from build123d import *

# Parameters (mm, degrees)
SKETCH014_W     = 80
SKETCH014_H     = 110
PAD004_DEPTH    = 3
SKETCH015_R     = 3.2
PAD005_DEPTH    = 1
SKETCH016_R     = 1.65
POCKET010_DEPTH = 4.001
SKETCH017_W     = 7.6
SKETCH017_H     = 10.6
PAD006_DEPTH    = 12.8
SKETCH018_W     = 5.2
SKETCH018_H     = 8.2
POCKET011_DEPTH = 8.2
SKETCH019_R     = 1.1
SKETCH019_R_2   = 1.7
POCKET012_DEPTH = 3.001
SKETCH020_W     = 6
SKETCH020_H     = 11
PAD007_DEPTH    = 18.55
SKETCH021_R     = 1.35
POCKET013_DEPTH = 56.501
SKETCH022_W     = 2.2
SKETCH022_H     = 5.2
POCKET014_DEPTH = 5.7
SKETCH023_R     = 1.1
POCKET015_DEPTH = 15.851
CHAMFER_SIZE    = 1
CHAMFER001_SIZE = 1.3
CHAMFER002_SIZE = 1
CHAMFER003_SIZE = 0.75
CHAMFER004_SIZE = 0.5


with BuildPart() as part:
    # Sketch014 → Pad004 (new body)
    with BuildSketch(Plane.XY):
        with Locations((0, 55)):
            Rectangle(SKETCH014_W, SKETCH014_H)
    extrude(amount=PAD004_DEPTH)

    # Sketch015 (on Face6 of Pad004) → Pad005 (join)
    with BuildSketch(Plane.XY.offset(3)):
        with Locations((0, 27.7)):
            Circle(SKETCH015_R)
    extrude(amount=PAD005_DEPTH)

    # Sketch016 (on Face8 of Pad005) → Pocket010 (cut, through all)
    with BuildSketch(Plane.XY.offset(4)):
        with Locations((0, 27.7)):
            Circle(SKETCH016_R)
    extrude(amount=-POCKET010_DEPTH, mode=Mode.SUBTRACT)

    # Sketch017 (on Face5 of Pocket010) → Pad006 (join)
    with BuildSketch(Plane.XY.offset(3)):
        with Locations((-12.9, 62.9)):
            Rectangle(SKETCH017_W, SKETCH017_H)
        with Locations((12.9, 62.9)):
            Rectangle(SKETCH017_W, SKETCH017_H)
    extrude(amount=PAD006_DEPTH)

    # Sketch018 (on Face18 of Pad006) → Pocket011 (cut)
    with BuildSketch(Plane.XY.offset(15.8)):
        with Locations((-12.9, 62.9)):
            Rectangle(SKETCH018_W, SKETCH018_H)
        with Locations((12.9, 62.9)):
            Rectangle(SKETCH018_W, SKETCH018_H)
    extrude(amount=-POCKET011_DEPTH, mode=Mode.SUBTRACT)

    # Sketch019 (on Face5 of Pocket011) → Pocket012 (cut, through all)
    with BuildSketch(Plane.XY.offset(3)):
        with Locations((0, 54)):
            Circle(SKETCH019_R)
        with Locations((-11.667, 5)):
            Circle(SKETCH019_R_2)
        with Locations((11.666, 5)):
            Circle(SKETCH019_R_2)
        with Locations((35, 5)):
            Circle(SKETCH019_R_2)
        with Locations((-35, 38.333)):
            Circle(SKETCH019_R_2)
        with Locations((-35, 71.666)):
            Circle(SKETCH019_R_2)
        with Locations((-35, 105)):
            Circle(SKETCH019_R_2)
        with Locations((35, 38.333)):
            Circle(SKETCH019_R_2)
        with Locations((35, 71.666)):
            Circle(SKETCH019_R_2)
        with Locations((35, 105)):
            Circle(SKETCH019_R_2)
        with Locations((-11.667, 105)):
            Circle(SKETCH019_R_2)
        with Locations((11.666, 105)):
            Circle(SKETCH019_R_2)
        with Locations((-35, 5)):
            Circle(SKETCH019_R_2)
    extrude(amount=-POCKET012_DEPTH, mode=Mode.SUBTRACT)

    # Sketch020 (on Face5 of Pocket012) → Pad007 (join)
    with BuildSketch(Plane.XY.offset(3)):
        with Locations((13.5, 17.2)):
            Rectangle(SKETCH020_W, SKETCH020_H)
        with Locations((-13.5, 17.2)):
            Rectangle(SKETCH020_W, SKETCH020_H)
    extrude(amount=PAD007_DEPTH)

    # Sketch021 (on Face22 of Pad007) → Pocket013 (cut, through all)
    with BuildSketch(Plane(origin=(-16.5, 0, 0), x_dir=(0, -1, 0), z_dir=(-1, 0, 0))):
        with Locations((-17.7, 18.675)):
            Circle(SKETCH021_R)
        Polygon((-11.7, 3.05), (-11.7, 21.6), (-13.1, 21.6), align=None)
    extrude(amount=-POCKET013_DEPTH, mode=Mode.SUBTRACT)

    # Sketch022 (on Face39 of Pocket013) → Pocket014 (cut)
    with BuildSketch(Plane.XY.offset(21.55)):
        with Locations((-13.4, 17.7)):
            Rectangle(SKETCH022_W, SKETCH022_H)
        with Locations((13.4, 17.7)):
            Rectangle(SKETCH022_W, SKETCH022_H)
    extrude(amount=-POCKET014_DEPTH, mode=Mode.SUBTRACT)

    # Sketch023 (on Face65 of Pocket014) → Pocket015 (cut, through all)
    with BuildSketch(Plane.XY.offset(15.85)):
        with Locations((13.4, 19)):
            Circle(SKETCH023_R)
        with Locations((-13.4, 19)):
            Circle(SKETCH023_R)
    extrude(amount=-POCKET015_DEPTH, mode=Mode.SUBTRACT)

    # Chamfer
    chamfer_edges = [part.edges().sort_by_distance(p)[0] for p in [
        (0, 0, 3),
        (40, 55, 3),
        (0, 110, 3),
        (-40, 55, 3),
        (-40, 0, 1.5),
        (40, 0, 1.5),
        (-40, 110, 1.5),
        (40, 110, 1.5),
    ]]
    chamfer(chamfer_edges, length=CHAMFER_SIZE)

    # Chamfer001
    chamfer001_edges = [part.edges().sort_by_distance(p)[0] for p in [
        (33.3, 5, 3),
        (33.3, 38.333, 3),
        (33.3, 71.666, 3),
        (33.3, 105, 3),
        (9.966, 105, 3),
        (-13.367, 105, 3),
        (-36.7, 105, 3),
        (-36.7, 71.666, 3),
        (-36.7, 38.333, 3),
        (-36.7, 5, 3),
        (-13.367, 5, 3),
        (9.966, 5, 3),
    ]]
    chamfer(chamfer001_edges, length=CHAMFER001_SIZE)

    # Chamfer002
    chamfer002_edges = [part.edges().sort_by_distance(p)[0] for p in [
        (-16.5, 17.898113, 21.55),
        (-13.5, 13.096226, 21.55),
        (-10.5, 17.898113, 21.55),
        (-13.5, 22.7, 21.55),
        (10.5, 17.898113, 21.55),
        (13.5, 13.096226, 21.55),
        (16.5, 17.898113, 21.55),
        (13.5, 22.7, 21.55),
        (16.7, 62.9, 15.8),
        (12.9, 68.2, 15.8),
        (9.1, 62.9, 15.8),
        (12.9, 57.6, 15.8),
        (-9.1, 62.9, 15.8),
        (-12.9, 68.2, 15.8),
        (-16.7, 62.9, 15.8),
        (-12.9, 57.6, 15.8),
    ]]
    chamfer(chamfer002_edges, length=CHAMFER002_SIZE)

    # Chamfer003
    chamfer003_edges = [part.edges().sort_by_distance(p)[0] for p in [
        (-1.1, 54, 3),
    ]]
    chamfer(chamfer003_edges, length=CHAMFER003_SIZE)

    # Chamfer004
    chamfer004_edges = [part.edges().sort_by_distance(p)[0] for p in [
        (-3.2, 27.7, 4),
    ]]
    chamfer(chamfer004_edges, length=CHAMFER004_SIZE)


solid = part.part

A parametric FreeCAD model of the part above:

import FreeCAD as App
import Part
import Sketcher
Q = App.Units.Quantity


def edges_at(feature, points):
    """Names of the edges that pass closest to the given points."""
    edges = feature.Shape.Edges
    near = lambda p: min(range(len(edges)), key=lambda i: edges[i].distToShape(Part.Vertex(*p))[0])
    return sorted({f"Edge{near(p) + 1}" for p in points})


def add_polygon(sketch, points):
    """Adds a closed chain of lines whose ends are joined by coincident constraints."""
    first, n = sketch.GeometryCount, len(points)
    for a, b in zip(points, points[1:] + points[:1]):
        sketch.addGeometry(Part.LineSegment(App.Vector(*a, 0), App.Vector(*b, 0)), False)
    for i in range(n):
        sketch.addConstraint(Sketcher.Constraint("Coincident", first + i, 2, first + (i + 1) % n, 1))

doc = App.newDocument("Part")
body = doc.addObject("PartDesign::Body", "Body")

# Sketch on XY plane
sketch1 = doc.addObject("Sketcher::SketchObject", "Sketch")
body.addObject(sketch1)
sketch1.AttachmentSupport = (doc.XY_Plane, [""])
sketch1.MapMode = "FlatFace"
add_polygon(sketch1, [(-40, 110), (-40, 0), (40, 0), (40, 110)])  # lines 0-3
sketch1.addConstraint([
    Sketcher.Constraint("Vertical", 0),
    Sketcher.Constraint("Horizontal", 1),
    Sketcher.Constraint("Vertical", 2),
    Sketcher.Constraint("Horizontal", 3),
    Sketcher.Constraint("Symmetric", 0, 2, 1, 2, -1, 1),
    Sketcher.Constraint("DistanceX", 1, 1, 1, 2, Q("80 mm")),
    Sketcher.Constraint("DistanceY", 0, 2, 0, 1, Q("110 mm")),
])
pad1 = doc.addObject("PartDesign::Pad", "Pad")
body.addObject(pad1)
pad1.Profile = sketch1
pad1.Length = 3

# Sketch on XY plane
sketch2 = doc.addObject("Sketcher::SketchObject", "Sketch001")
body.addObject(sketch2)
sketch2.AttachmentSupport = (doc.XY_Plane, [""])
sketch2.MapMode = "FlatFace"
sketch2.AttachmentOffset = App.Placement(App.Vector(0, 0, 3), App.Rotation())
sketch2.addGeometry(Part.Circle(App.Vector(0, 27.7, 0), App.Vector(0, 0, 1), 3.2), False)
sketch2.addConstraint([
    Sketcher.Constraint("PointOnObject", 0, 3, -2),
    Sketcher.Constraint("Diameter", 0, Q("6.4 mm")),
    Sketcher.Constraint("DistanceY", -1, 1, 0, 3, Q("27.7 mm")),
])
pad2 = doc.addObject("PartDesign::Pad", "Pad001")
body.addObject(pad2)
pad2.Profile = sketch2
pad2.Length = 1

# Sketch on XY plane
sketch3 = doc.addObject("Sketcher::SketchObject", "Sketch002")
body.addObject(sketch3)
sketch3.AttachmentSupport = (doc.XY_Plane, [""])
sketch3.MapMode = "FlatFace"
sketch3.AttachmentOffset = App.Placement(App.Vector(0, 0, 4), App.Rotation())
sketch3.addGeometry(Part.Circle(App.Vector(0, 27.7, 0), App.Vector(0, 0, 1), 1.65), False)
sketch3.addConstraint([
    Sketcher.Constraint("PointOnObject", 0, 3, -2),
    Sketcher.Constraint("Diameter", 0, Q("3.3 mm")),
    Sketcher.Constraint("DistanceY", -1, 1, 0, 3, Q("27.7 mm")),
])
pocket1 = doc.addObject("PartDesign::Pocket", "Pocket")
body.addObject(pocket1)
pocket1.Profile = sketch3
pocket1.Type = "ThroughAll"

# Sketch on XY plane
sketch4 = doc.addObject("Sketcher::SketchObject", "Sketch003")
body.addObject(sketch4)
sketch4.AttachmentSupport = (doc.XY_Plane, [""])
sketch4.MapMode = "FlatFace"
sketch4.AttachmentOffset = App.Placement(App.Vector(0, 0, 3), App.Rotation())
add_polygon(sketch4, [(-16.7, 68.2), (-16.7, 57.6), (-9.1, 57.6), (-9.1, 68.2)])  # lines 0-3
add_polygon(sketch4, [(9.1, 68.2), (9.1, 57.6), (16.7, 57.6), (16.7, 68.2)])  # lines 4-7
sketch4.addConstraint([
    Sketcher.Constraint("Vertical", 0),
    Sketcher.Constraint("Horizontal", 1),
    Sketcher.Constraint("Vertical", 2),
    Sketcher.Constraint("Horizontal", 3),
    Sketcher.Constraint("Vertical", 4),
    Sketcher.Constraint("Horizontal", 5),
    Sketcher.Constraint("Vertical", 6),
    Sketcher.Constraint("Horizontal", 7),
    Sketcher.Constraint("Symmetric", 1, 2, 4, 2, -2),
    Sketcher.Constraint("Symmetric", 3, 2, 6, 2, -2),
    Sketcher.Constraint("DistanceX", 1, 1, 1, 2, Q("7.6 mm")),
    Sketcher.Constraint("DistanceY", 0, 2, 0, 1, Q("10.6 mm")),
    Sketcher.Constraint("DistanceX", 0, 2, -1, 1, Q("16.7 mm")),
    Sketcher.Constraint("DistanceY", -1, 1, 0, 2, Q("57.6 mm")),
])
pad3 = doc.addObject("PartDesign::Pad", "Pad002")
body.addObject(pad3)
pad3.Profile = sketch4
pad3.Length = 12.8

# Sketch on XY plane
sketch5 = doc.addObject("Sketcher::SketchObject", "Sketch004")
body.addObject(sketch5)
sketch5.AttachmentSupport = (doc.XY_Plane, [""])
sketch5.MapMode = "FlatFace"
sketch5.AttachmentOffset = App.Placement(App.Vector(0, 0, 15.8), App.Rotation())
add_polygon(sketch5, [(-15.5, 67), (-15.5, 58.8), (-10.3, 58.8), (-10.3, 67)])  # lines 0-3
add_polygon(sketch5, [(10.3, 67), (10.3, 58.8), (15.5, 58.8), (15.5, 67)])  # lines 4-7
sketch5.addConstraint([
    Sketcher.Constraint("Vertical", 0),
    Sketcher.Constraint("Horizontal", 1),
    Sketcher.Constraint("Vertical", 2),
    Sketcher.Constraint("Horizontal", 3),
    Sketcher.Constraint("Vertical", 4),
    Sketcher.Constraint("Horizontal", 5),
    Sketcher.Constraint("Vertical", 6),
    Sketcher.Constraint("Horizontal", 7),
    Sketcher.Constraint("Symmetric", 1, 2, 4, 2, -2),
    Sketcher.Constraint("Symmetric", 3, 2, 6, 2, -2),
    Sketcher.Constraint("DistanceX", 1, 1, 1, 2, Q("5.2 mm")),
    Sketcher.Constraint("DistanceY", 0, 2, 0, 1, Q("8.2 mm")),
    Sketcher.Constraint("DistanceY", -1, 1, 2, 2, Q("67 mm")),
    Sketcher.Constraint("DistanceX", 0, 2, 5, 2, Q("31 mm")),
])
pocket2 = doc.addObject("PartDesign::Pocket", "Pocket001")
body.addObject(pocket2)
pocket2.Profile = sketch5
pocket2.Length = 8.2

# Sketch on XY plane
sketch6 = doc.addObject("Sketcher::SketchObject", "Sketch005")
body.addObject(sketch6)
sketch6.AttachmentSupport = (doc.XY_Plane, [""])
sketch6.MapMode = "FlatFace"
sketch6.AttachmentOffset = App.Placement(App.Vector(0, 0, 3), App.Rotation())
sketch6.addGeometry([
    Part.Circle(App.Vector(0, 54, 0), App.Vector(0, 0, 1), 1.1),  # 0
    Part.Circle(App.Vector(-11.667, 5, 0), App.Vector(0, 0, 1), 1.7),  # 1
    Part.Circle(App.Vector(11.666, 5, 0), App.Vector(0, 0, 1), 1.7),  # 2
    Part.Circle(App.Vector(35, 5, 0), App.Vector(0, 0, 1), 1.7),  # 3
    Part.Circle(App.Vector(-35, 38.333, 0), App.Vector(0, 0, 1), 1.7),  # 4
    Part.Circle(App.Vector(-35, 71.666, 0), App.Vector(0, 0, 1), 1.7),  # 5
    Part.Circle(App.Vector(-35, 105, 0), App.Vector(0, 0, 1), 1.7),  # 6
    Part.Circle(App.Vector(35, 38.333, 0), App.Vector(0, 0, 1), 1.7),  # 7
    Part.Circle(App.Vector(35, 71.666, 0), App.Vector(0, 0, 1), 1.7),  # 8
    Part.Circle(App.Vector(35, 105, 0), App.Vector(0, 0, 1), 1.7),  # 9
    Part.Circle(App.Vector(-11.667, 105, 0), App.Vector(0, 0, 1), 1.7),  # 10
    Part.Circle(App.Vector(11.666, 105, 0), App.Vector(0, 0, 1), 1.7),  # 11
    Part.Circle(App.Vector(-35, 5, 0), App.Vector(0, 0, 1), 1.7),  # 12
], False)
sketch6.addConstraint([
    Sketcher.Constraint("Equal", 1, 2),
    Sketcher.Constraint("Equal", 2, 3),
    Sketcher.Constraint("Equal", 3, 4),
    Sketcher.Constraint("Equal", 4, 5),
    Sketcher.Constraint("Equal", 5, 6),
    Sketcher.Constraint("Equal", 6, 7),
    Sketcher.Constraint("Equal", 7, 8),
    Sketcher.Constraint("Equal", 8, 9),
    Sketcher.Constraint("Equal", 9, 10),
    Sketcher.Constraint("Equal", 10, 11),
    Sketcher.Constraint("Equal", 11, 12),
    Sketcher.Constraint("Symmetric", 4, 3, 7, 3, -2),
    Sketcher.Constraint("Symmetric", 5, 3, 8, 3, -2),
    Sketcher.Constraint("Symmetric", 6, 3, 9, 3, -2),
    Sketcher.Constraint("Symmetric", 3, 3, 12, 3, -2),
    Sketcher.Constraint("PointOnObject", 0, 3, -2),
    Sketcher.Constraint("Horizontal", 1, 3, 2, 3),
    Sketcher.Constraint("Horizontal", 2, 3, 3, 3),
    Sketcher.Constraint("Horizontal", 9, 3, 10, 3),
    Sketcher.Constraint("Horizontal", 10, 3, 11, 3),
    Sketcher.Constraint("Vertical", 4, 3, 5, 3),
    Sketcher.Constraint("Vertical", 5, 3, 6, 3),
    Sketcher.Constraint("Vertical", 3, 3, 7, 3),
    Sketcher.Constraint("Vertical", 1, 3, 10, 3),
    Sketcher.Constraint("Vertical", 2, 3, 11, 3),
    Sketcher.Constraint("Diameter", 0, Q("2.2 mm")),
    Sketcher.Constraint("Diameter", 1, Q("3.4 mm")),
    Sketcher.Constraint("DistanceY", -1, 1, 0, 3, Q("54 mm")),
    Sketcher.Constraint("DistanceY", -1, 1, 1, 3, Q("5 mm")),
    Sketcher.Constraint("DistanceX", -1, 1, 3, 3, Q("35 mm")),
    Sketcher.Constraint("DistanceY", -1, 1, 6, 3, Q("105 mm")),
    Sketcher.Constraint("DistanceX", 1, 3, -1, 1, Q("11.667 mm")),
    Sketcher.Constraint("DistanceX", -1, 1, 2, 3, Q("11.666 mm")),
    Sketcher.Constraint("DistanceY", -1, 1, 4, 3, Q("38.333 mm")),
    Sketcher.Constraint("DistanceY", -1, 1, 5, 3, Q("71.666 mm")),
])
pocket3 = doc.addObject("PartDesign::Pocket", "Pocket002")
body.addObject(pocket3)
pocket3.Profile = sketch6
pocket3.Type = "ThroughAll"

# Sketch on XY plane
sketch7 = doc.addObject("Sketcher::SketchObject", "Sketch006")
body.addObject(sketch7)
sketch7.AttachmentSupport = (doc.XY_Plane, [""])
sketch7.MapMode = "FlatFace"
sketch7.AttachmentOffset = App.Placement(App.Vector(0, 0, 3), App.Rotation())
add_polygon(sketch7, [(10.5, 22.7), (10.5, 11.7), (16.5, 11.7), (16.5, 22.7)])  # lines 0-3
add_polygon(sketch7, [(-16.5, 22.7), (-16.5, 11.7), (-10.5, 11.7), (-10.5, 22.7)])  # lines 4-7
sketch7.addConstraint([
    Sketcher.Constraint("Vertical", 0),
    Sketcher.Constraint("Horizontal", 1),
    Sketcher.Constraint("Vertical", 2),
    Sketcher.Constraint("Horizontal", 3),
    Sketcher.Constraint("Vertical", 4),
    Sketcher.Constraint("Horizontal", 5),
    Sketcher.Constraint("Vertical", 6),
    Sketcher.Constraint("Horizontal", 7),
    Sketcher.Constraint("Symmetric", 1, 2, 4, 2, -2),
    Sketcher.Constraint("Symmetric", 3, 2, 6, 2, -2),
    Sketcher.Constraint("DistanceX", 1, 1, 1, 2, Q("6 mm")),
    Sketcher.Constraint("DistanceY", 0, 2, 0, 1, Q("11 mm")),
    Sketcher.Constraint("DistanceX", 4, 2, 0, 2, Q("27 mm")),
    Sketcher.Constraint("DistanceY", -1, 1, 0, 2, Q("11.7 mm")),
])
pad4 = doc.addObject("PartDesign::Pad", "Pad003")
body.addObject(pad4)
pad4.Profile = sketch7
pad4.Length = 18.55

# Sketch on YZ plane
sketch8 = doc.addObject("Sketcher::SketchObject", "Sketch007")
body.addObject(sketch8)
sketch8.AttachmentSupport = (doc.YZ_Plane, [""])
sketch8.MapMode = "FlatFace"
sketch8.AttachmentOffset = App.Placement(App.Vector(0, 0, -16.5), App.Rotation())
sketch8.addGeometry(Part.Circle(App.Vector(17.7, 18.675, 0), App.Vector(0, 0, 1), 1.35), False)  # 0
add_polygon(sketch8, [(11.7, 3.05), (11.7, 21.6), (13.1, 21.6)])  # lines 1-3
sketch8.addConstraint([
    Sketcher.Constraint("Vertical", 1),
    Sketcher.Constraint("Horizontal", 2),
    Sketcher.Constraint("Diameter", 0, Q("2.7 mm")),
    Sketcher.Constraint("DistanceX", 2, 1, 2, 2, Q("1.4 mm")),
    Sketcher.Constraint("DistanceX", 1, 2, 0, 3, Q("6 mm")),
    Sketcher.Constraint("DistanceY", 1, 1, 1, 2, Q("18.55 mm")),
    Sketcher.Constraint("DistanceX", -1, 1, 0, 3, Q("17.7 mm")),
    Sketcher.Constraint("DistanceY", -1, 1, 1, 2, Q("21.6 mm")),
    Sketcher.Constraint("DistanceY", -1, 1, 0, 3, Q("18.675 mm")),
])
pocket4 = doc.addObject("PartDesign::Pocket", "Pocket003")
body.addObject(pocket4)
pocket4.Profile = sketch8
pocket4.Type = "ThroughAll"
pocket4.Reversed = True

# Sketch on XY plane
sketch9 = doc.addObject("Sketcher::SketchObject", "Sketch008")
body.addObject(sketch9)
sketch9.AttachmentSupport = (doc.XY_Plane, [""])
sketch9.MapMode = "FlatFace"
sketch9.AttachmentOffset = App.Placement(App.Vector(0, 0, 21.55), App.Rotation())
add_polygon(sketch9, [(-14.5, 20.3), (-14.5, 15.1), (-12.3, 15.1), (-12.3, 20.3)])  # lines 0-3
add_polygon(sketch9, [(12.3, 20.3), (12.3, 15.1), (14.5, 15.1), (14.5, 20.3)])  # lines 4-7
sketch9.addConstraint([
    Sketcher.Constraint("Vertical", 0),
    Sketcher.Constraint("Horizontal", 1),
    Sketcher.Constraint("Vertical", 2),
    Sketcher.Constraint("Horizontal", 3),
    Sketcher.Constraint("Vertical", 4),
    Sketcher.Constraint("Horizontal", 5),
    Sketcher.Constraint("Vertical", 6),
    Sketcher.Constraint("Horizontal", 7),
    Sketcher.Constraint("Symmetric", 1, 2, 4, 2, -2),
    Sketcher.Constraint("Symmetric", 3, 2, 6, 2, -2),
    Sketcher.Constraint("DistanceX", 1, 1, 1, 2, Q("2.2 mm")),
    Sketcher.Constraint("DistanceY", 0, 2, 0, 1, Q("5.2 mm")),
    Sketcher.Constraint("DistanceX", 0, 2, 5, 2, Q("29 mm")),
    Sketcher.Constraint("DistanceY", -1, 1, 0, 2, Q("15.1 mm")),
])
pocket5 = doc.addObject("PartDesign::Pocket", "Pocket004")
body.addObject(pocket5)
pocket5.Profile = sketch9
pocket5.Length = 5.7

# Sketch on XY plane
sketch10 = doc.addObject("Sketcher::SketchObject", "Sketch009")
body.addObject(sketch10)
sketch10.AttachmentSupport = (doc.XY_Plane, [""])
sketch10.MapMode = "FlatFace"
sketch10.AttachmentOffset = App.Placement(App.Vector(0, 0, 15.85), App.Rotation())
sketch10.addGeometry([
    Part.Circle(App.Vector(13.4, 19, 0), App.Vector(0, 0, 1), 1.1),
    Part.Circle(App.Vector(-13.4, 19, 0), App.Vector(0, 0, 1), 1.1),
], False)
sketch10.addConstraint([
    Sketcher.Constraint("Equal", 0, 1),
    Sketcher.Constraint("Symmetric", 0, 3, 1, 3, -2),
    Sketcher.Constraint("Diameter", 0, Q("2.2 mm")),
    Sketcher.Constraint("DistanceY", -1, 1, 0, 3, Q("19 mm")),
    Sketcher.Constraint("DistanceX", -1, 1, 0, 3, Q("13.4 mm")),
])
pocket6 = doc.addObject("PartDesign::Pocket", "Pocket005")
body.addObject(pocket6)
pocket6.Profile = sketch10
pocket6.Type = "ThroughAll"
doc.recompute()

chamfer = doc.addObject("PartDesign::Chamfer", "Chamfer")
body.addObject(chamfer)
chamfer.Base = (pocket6, edges_at(pocket6, [
    (0, 0, 3),
    (40, 55, 3),
    (0, 110, 3),
    (-40, 55, 3),
    (-40, 0, 1.5),
    (40, 0, 1.5),
    (-40, 110, 1.5),
    (40, 110, 1.5),
]))
chamfer.Size = 1
doc.recompute()

chamfer2 = doc.addObject("PartDesign::Chamfer", "Chamfer001")
body.addObject(chamfer2)
chamfer2.Base = (chamfer, edges_at(chamfer, [
    (33.3, 5, 3),
    (33.3, 38.333, 3),
    (33.3, 71.666, 3),
    (33.3, 105, 3),
    (9.966, 105, 3),
    (-13.367, 105, 3),
    (-36.7, 105, 3),
    (-36.7, 71.666, 3),
    (-36.7, 38.333, 3),
    (-36.7, 5, 3),
    (-13.367, 5, 3),
    (9.966, 5, 3),
]))
chamfer2.Size = 1.3
doc.recompute()

chamfer3 = doc.addObject("PartDesign::Chamfer", "Chamfer002")
body.addObject(chamfer3)
chamfer3.Base = (chamfer2, edges_at(chamfer2, [
    (-16.5, 17.898, 21.55),
    (-13.5, 13.096, 21.55),
    (-10.5, 17.898, 21.55),
    (-13.5, 22.7, 21.55),
    (10.5, 17.898, 21.55),
    (13.5, 13.096, 21.55),
    (16.5, 17.898, 21.55),
    (13.5, 22.7, 21.55),
    (16.7, 62.9, 15.8),
    (12.9, 68.2, 15.8),
    (9.1, 62.9, 15.8),
    (12.9, 57.6, 15.8),
    (-9.1, 62.9, 15.8),
    (-12.9, 68.2, 15.8),
    (-16.7, 62.9, 15.8),
    (-12.9, 57.6, 15.8),
]))
chamfer3.Size = 1
doc.recompute()

chamfer4 = doc.addObject("PartDesign::Chamfer", "Chamfer003")
body.addObject(chamfer4)
chamfer4.Base = (chamfer3, edges_at(chamfer3, [(-1.1, 54, 3)]))
chamfer4.Size = 0.75
doc.recompute()

chamfer5 = doc.addObject("PartDesign::Chamfer", "Chamfer004")
body.addObject(chamfer5)
chamfer5.Base = (chamfer4, edges_at(chamfer4, [(-3.2, 27.7, 4)]))
chamfer5.Size = 0.5

doc.recompute()
